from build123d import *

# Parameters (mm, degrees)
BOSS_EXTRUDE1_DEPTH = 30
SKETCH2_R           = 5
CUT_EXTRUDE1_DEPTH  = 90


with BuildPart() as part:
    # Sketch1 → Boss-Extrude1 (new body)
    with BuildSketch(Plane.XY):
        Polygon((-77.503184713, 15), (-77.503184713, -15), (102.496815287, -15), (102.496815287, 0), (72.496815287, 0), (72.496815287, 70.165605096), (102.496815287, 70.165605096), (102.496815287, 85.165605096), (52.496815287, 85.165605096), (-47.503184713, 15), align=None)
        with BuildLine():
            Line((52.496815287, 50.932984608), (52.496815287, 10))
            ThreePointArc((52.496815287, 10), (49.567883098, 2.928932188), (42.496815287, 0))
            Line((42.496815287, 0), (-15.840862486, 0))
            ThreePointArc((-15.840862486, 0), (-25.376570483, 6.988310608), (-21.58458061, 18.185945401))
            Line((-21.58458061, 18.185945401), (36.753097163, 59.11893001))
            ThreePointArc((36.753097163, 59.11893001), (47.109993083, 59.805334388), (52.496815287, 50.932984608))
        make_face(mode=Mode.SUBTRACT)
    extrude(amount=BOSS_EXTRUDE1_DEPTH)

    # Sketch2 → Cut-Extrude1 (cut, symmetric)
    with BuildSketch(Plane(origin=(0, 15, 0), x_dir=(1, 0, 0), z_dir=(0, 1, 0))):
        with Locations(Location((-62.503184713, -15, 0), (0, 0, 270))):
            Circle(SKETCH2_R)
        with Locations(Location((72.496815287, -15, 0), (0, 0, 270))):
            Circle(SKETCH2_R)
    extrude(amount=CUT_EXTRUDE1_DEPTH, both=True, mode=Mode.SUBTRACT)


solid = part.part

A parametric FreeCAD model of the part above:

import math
import FreeCAD as App
import Part
import Sketcher

V = App.Vector


def add_polygon(sketch, points):
    """Adds a closed chain of lines whose ends are joined by coincident constraints."""
    first, n = sketch.GeometryCount, len(points)
    for a, b in zip(points, points[1:] + points[:1]):
        sketch.addGeometry(Part.LineSegment(App.Vector(*a, 0), App.Vector(*b, 0)), False)
    for i in range(n):
        sketch.addConstraint(Sketcher.Constraint("Coincident", first + i, 2, first + (i + 1) % n, 1))

doc = App.newDocument("Part")
body = doc.addObject("PartDesign::Body", "Body")

sketch1 = body.newObject("Sketcher::SketchObject", "Sketch")
sketch1.AttachmentSupport = (doc.getObject("XY_Plane"), [""])
sketch1.MapMode = "FlatFace"
add_polygon(sketch1, [(-78, 15), (-78, -15), (102, -15), (102, 0), (72, 0), (72, 70), (102, 70), (102, 85), (52, 85), (-48, 15)])
sketch1.addGeometry(Part.ArcOfCircle(Part.Circle(V(42, 51, 0), V(0, 0, 1), 10), math.radians(0), math.radians(125)), False)
sketch1.addGeometry(Part.LineSegment(V(52, 51, 0), V(52, 10, 0)), False)
sketch1.addGeometry(Part.ArcOfCircle(Part.Circle(V(42, 10, 0), V(0, 0, 1), 10), math.radians(-90), math.radians(0)), False)
sketch1.addGeometry(Part.LineSegment(V(42, 0, 0), V(-16, 0, 0)), False)
sketch1.addGeometry(Part.ArcOfCircle(Part.Circle(V(-16, 10, 0), V(0, 0, 1), 10), math.radians(125), math.radians(270)), False)
sketch1.addGeometry(Part.LineSegment(V(-22, 18, 0), V(37, 59, 0)), False)
sketch1.addConstraint(Sketcher.Constraint("Tangent", 10, 1, 11, 1))
sketch1.addConstraint(Sketcher.Constraint("Tangent", 11, 2, 12, 2))
sketch1.addConstraint(Sketcher.Constraint("Tangent", 12, 1, 13, 1))
sketch1.addConstraint(Sketcher.Constraint("Tangent", 13, 2, 14, 2))
sketch1.addConstraint(Sketcher.Constraint("Tangent", 14, 1, 15, 1))
sketch1.addConstraint(Sketcher.Constraint("Tangent", 15, 2, 10, 2))
sketch1.addConstraint(Sketcher.Constraint("Vertical", 0))
sketch1.addConstraint(Sketcher.Constraint("Horizontal", 1))
sketch1.addConstraint(Sketcher.Constraint("Vertical", 2))
sketch1.addConstraint(Sketcher.Constraint("Horizontal", 3))
sketch1.addConstraint(Sketcher.Constraint("Vertical", 4))
sketch1.addConstraint(Sketcher.Constraint("Horizontal", 5))
sketch1.addConstraint(Sketcher.Constraint("Vertical", 6))
sketch1.addConstraint(Sketcher.Constraint("Horizontal", 7))
sketch1.addConstraint(Sketcher.Constraint("Horizontal", 9))
sketch1.addConstraint(Sketcher.Constraint("Vertical", 11))
sketch1.addConstraint(Sketcher.Constraint("Horizontal", 13))
sketch1.addConstraint(Sketcher.Constraint("Equal", 10, 12))
sketch1.addConstraint(Sketcher.Constraint("Equal", 12, 14))
sketch1.addConstraint(Sketcher.Constraint("PointOnObject", 2, 2, -1))
sketch1.addConstraint(Sketcher.Constraint("PointOnObject", 12, 1, -1))
sketch1.addConstraint(Sketcher.Constraint("Parallel", 8, 15))
sketch1.addConstraint(Sketcher.Constraint("Vertical", 2, 2, 5, 2))
sketch1.addConstraint(Sketcher.Constraint("Vertical", 7, 2, 10, 1))
sketch1.addConstraint(Sketcher.Constraint("Equal", 5, 9))
sketch1.addConstraint(Sketcher.Constraint("Equal", 9, 0))
sketch1.addConstraint(Sketcher.Constraint("Equal", 2, 6))
sketch1.addConstraint(Sketcher.Constraint("Radius", 10, 10.0))
sketch1.addConstraint(Sketcher.Constraint("DistanceX", 1, 1, 1, 2, 180.0))
sketch1.addConstraint(Sketcher.Constraint("DistanceX", 3, 2, 3, 1, 30.0))
sketch1.addConstraint(Sketcher.Constraint("DistanceX", 7, 2, 7, 1, 50.0))
sketch1.addConstraint(Sketcher.Constraint("DistanceY", 2, 1, 2, 2, 15.0))
sketch1.addConstraint(Sketcher.Constraint("Distance", 8, 122.1606))
sketch1.addConstraint(Sketcher.Constraint("DistanceX", 13, 2, 13, 1, 58.337678))
sketch1.addConstraint(Sketcher.Constraint("DistanceX", 14, 1, -1, 1, 21.584581))
pad1 = body.newObject("PartDesign::Pad", "Pad")
pad1.Profile = sketch1
pad1.Length = 30

sketch2 = body.newObject("Sketcher::SketchObject", "Sketch001")
sketch2.AttachmentSupport = (doc.getObject("XZ_Plane"), [""])
sketch2.MapMode = "FlatFace"
sketch2.AttachmentOffset = App.Placement(V(0, 0, -15), App.Rotation())
sketch2.addGeometry(Part.Circle(V(-63, 15, 0), V(0, 0, 1), 5), False)
sketch2.addGeometry(Part.Circle(V(72, 15, 0), V(0, 0, 1), 5), False)
sketch2.addConstraint(Sketcher.Constraint("Equal", 0, 1))
sketch2.addConstraint(Sketcher.Constraint("Horizontal", 0, 3, 1, 3))
sketch2.addConstraint(Sketcher.Constraint("Diameter", 0, 10.0))
sketch2.addConstraint(Sketcher.Constraint("DistanceY", -1, 1, 0, 3, 15.0))
sketch2.addConstraint(Sketcher.Constraint("DistanceX", 0, 3, 1, 3, 135.0))
sketch2.addConstraint(Sketcher.Constraint("DistanceX", 0, 3, -1, 1, 62.503185))
pocket1 = body.newObject("PartDesign::Pocket", "Pocket")
pocket1.Profile = sketch2
pocket1.Length = 180
pocket1.Midplane = True

doc.recompute()
